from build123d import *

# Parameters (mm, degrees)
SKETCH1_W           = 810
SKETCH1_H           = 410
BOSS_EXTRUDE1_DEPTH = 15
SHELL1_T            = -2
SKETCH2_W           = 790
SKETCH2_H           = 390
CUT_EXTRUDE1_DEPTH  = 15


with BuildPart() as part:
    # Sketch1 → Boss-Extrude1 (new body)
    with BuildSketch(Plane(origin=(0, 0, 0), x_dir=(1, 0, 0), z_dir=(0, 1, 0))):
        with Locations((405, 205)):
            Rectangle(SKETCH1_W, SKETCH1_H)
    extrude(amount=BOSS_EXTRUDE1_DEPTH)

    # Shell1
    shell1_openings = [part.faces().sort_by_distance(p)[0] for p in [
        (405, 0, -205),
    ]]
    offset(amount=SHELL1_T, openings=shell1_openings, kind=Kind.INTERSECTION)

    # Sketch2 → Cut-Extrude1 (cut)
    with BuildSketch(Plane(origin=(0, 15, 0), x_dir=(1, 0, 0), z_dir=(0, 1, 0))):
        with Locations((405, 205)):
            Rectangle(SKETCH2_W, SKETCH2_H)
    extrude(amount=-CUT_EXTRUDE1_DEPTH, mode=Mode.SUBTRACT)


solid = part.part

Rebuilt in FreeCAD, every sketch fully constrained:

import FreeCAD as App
import Part
import Sketcher
from FreeCAD import Vector


def faces_at(feature, points):
    """Names of the faces that lie closest to the given points."""
    faces = feature.Shape.Faces
    near = lambda p: min(range(len(faces)), key=lambda i: faces[i].distToShape(Part.Vertex(*p))[0])
    return sorted({f"Face{near(p) + 1}" for p in points})


def add_polygon(sketch, points):
    """Adds a closed chain of lines whose ends are joined by coincident constraints."""
    first, n = sketch.GeometryCount, len(points)
    for a, b in zip(points, points[1:] + points[:1]):
        sketch.addGeometry(Part.LineSegment(App.Vector(*a, 0), App.Vector(*b, 0)), False)
    for i in range(n):
        sketch.addConstraint(Sketcher.Constraint("Coincident", first + i, 2, first + (i + 1) % n, 1))

doc = App.newDocument("Part")
body = doc.addObject("PartDesign::Body", "Body")

sketch1 = doc.addObject("Sketcher::SketchObject", "Sketch")
body.addObject(sketch1)
sketch1.AttachmentSupport = (doc.XZ_Plane, [""])
sketch1.MapMode = "FlatFace"
add_polygon(sketch1, [(0, -410), (0, 0), (810, 0), (810, -410)])
sketch1.addConstraint(Sketcher.Constraint("Vertical", 0))
sketch1.addConstraint(Sketcher.Constraint("Horizontal", 1))
sketch1.addConstraint(Sketcher.Constraint("Vertical", 2))
sketch1.addConstraint(Sketcher.Constraint("Horizontal", 3))
sketch1.addConstraint(Sketcher.Constraint("Coincident", 0, 2, -1, 1))
sketch1.addConstraint(Sketcher.Constraint("DistanceX", 1, 1, 1, 2, 810.0))
sketch1.addConstraint(Sketcher.Constraint("DistanceY", 0, 1, 0, 2, 410.0))
pad1 = doc.addObject("PartDesign::Pad", "Pad")
body.addObject(pad1)
pad1.Profile = sketch1
pad1.Length = 15
pad1.Reversed = True
doc.recompute()

thickness = doc.addObject("PartDesign::Thickness", "Thickness")
body.addObject(thickness)
thickness.Base = (pad1, faces_at(pad1, [(405, 0, -205)]))
thickness.Value = 2
thickness.Reversed = True
thickness.Join = "Intersection"

sketch2 = doc.addObject("Sketcher::SketchObject", "Sketch001")
body.addObject(sketch2)
sketch2.AttachmentSupport = (doc.XZ_Plane, [""])
sketch2.MapMode = "FlatFace"
sketch2.AttachmentOffset = App.Placement(Vector(0, 0, -15), App.Rotation())
add_polygon(sketch2, [(10, -400), (10, -10), (800, -10), (800, -400)])
sketch2.addConstraint(Sketcher.Constraint("Vertical", 0))
sketch2.addConstraint(Sketcher.Constraint("Horizontal", 1))
sketch2.addConstraint(Sketcher.Constraint("Vertical", 2))
sketch2.addConstraint(Sketcher.Constraint("Horizontal", 3))
sketch2.addConstraint(Sketcher.Constraint("DistanceX", 1, 1, 1, 2, 790.0))
sketch2.addConstraint(Sketcher.Constraint("DistanceY", 0, 1, 0, 2, 390.0))
sketch2.addConstraint(Sketcher.Constraint("DistanceX", -1, 1, 0, 2, 10.0))
sketch2.addConstraint(Sketcher.Constraint("DistanceY", 0, 2, -1, 1, 10.0))
pocket1 = doc.addObject("PartDesign::Pocket", "Pocket")
body.addObject(pocket1)
pocket1.Profile = sketch2
pocket1.Length = 15
pocket1.Reversed = True

doc.recompute()
